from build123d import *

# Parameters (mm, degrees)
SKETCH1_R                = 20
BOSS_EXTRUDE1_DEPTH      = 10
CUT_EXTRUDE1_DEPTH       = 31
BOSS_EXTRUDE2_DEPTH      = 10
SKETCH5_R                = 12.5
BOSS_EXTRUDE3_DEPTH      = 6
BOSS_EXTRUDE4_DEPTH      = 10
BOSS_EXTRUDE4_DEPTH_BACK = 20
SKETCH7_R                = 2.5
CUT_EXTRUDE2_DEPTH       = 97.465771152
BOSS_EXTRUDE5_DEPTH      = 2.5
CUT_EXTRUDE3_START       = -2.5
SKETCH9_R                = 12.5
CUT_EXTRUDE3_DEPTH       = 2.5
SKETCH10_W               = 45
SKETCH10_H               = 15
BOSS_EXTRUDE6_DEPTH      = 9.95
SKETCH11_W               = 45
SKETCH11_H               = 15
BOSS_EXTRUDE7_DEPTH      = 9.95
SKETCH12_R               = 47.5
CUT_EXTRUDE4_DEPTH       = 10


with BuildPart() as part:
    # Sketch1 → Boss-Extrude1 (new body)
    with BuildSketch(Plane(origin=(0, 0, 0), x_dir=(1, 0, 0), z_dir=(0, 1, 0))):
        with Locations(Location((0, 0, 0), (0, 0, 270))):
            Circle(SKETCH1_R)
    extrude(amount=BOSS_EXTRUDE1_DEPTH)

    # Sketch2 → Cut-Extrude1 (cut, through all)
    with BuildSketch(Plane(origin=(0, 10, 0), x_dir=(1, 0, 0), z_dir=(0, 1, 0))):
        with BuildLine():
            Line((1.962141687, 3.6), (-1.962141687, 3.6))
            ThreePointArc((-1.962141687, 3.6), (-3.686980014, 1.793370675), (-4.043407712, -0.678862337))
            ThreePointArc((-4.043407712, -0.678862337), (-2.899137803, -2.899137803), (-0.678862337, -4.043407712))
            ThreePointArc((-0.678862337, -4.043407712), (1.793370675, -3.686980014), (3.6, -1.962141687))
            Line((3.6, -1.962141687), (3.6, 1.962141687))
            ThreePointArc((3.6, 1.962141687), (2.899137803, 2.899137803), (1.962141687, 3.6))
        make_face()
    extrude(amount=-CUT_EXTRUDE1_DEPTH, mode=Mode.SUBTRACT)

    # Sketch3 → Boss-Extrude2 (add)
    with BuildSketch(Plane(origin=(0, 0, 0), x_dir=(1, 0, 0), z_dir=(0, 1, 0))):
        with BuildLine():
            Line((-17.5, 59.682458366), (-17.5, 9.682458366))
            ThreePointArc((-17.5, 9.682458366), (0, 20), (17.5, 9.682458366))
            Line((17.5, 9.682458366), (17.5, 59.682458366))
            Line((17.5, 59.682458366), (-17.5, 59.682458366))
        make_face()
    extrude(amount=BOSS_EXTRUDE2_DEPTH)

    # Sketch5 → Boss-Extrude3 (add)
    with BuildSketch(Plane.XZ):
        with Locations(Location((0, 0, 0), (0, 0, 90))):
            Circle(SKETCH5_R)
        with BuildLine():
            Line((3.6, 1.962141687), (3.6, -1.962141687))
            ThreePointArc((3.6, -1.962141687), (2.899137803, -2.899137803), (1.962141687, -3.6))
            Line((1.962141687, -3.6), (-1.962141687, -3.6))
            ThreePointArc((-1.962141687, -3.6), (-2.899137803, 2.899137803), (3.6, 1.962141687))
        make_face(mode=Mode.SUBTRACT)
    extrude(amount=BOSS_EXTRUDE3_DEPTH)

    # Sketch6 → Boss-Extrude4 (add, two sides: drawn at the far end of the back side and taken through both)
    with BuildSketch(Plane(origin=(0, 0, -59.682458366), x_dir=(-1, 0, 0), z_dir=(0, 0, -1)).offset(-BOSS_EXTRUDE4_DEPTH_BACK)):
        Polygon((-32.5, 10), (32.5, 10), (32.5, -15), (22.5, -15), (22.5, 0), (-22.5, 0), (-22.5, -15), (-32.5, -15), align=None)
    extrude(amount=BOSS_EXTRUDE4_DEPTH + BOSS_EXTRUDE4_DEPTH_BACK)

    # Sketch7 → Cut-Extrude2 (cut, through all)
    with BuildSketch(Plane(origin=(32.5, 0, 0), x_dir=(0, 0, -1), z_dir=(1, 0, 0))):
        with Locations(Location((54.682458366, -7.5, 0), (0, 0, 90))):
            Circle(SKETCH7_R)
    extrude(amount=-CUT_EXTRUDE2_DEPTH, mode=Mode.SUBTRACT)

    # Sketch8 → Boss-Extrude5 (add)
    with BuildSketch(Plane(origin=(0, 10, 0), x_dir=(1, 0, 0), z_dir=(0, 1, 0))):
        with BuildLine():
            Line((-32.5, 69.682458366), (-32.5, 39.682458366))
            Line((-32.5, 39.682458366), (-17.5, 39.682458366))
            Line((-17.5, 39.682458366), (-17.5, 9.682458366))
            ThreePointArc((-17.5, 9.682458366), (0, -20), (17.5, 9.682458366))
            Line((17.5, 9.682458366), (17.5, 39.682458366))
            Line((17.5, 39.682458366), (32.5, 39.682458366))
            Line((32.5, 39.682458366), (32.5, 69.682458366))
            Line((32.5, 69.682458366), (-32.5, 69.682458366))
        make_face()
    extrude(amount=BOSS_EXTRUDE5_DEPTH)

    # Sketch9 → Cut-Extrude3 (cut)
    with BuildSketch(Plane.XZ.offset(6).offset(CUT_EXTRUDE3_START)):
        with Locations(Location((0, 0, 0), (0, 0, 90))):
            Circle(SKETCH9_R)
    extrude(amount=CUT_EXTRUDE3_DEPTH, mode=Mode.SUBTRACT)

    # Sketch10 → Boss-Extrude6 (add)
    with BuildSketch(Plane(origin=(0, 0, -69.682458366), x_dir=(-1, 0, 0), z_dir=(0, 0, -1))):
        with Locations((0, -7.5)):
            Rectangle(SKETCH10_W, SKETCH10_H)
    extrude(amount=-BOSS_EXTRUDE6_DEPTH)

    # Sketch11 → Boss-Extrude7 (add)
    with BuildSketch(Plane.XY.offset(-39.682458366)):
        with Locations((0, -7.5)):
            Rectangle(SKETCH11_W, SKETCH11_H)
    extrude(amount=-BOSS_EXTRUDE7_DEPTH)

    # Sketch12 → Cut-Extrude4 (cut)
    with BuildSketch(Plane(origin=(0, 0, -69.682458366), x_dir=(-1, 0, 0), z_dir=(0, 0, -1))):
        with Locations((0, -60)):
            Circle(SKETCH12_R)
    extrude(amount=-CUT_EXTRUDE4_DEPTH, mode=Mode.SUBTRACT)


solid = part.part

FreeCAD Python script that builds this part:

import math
import FreeCAD as App
import Part
import Sketcher

doc = App.newDocument("Part")
body = doc.addObject("PartDesign::Body", "Body")

sketch1 = body.newObject("Sketcher::SketchObject", "Sketch")
sketch1.AttachmentSupport = (doc.getObject("XZ_Plane"), [""])
sketch1.MapMode = "FlatFace"
sketch1.addGeometry(Part.Circle(App.Vector(0, 0, 0), App.Vector(0, 0, 1), 20), False)
sketch1.addConstraint([
    Sketcher.Constraint("Coincident", 0, 3, -1, 1),
    Sketcher.Constraint("Diameter", 0, 40.0),
])
pad1 = body.newObject("PartDesign::Pad", "Pad")
pad1.Profile = sketch1
pad1.Length = 10
pad1.Reversed = True

sketch2 = body.newObject("Sketcher::SketchObject", "Sketch001")
sketch2.AttachmentSupport = (doc.getObject("XZ_Plane"), [""])
sketch2.MapMode = "FlatFace"
sketch2.AttachmentOffset = App.Placement(App.Vector(0, 0, -10), App.Rotation())
sketch2.addGeometry([
    Part.LineSegment(App.Vector(2, -3.6, 0), App.Vector(-2, -3.6, 0)),
    Part.ArcOfCircle(Part.Circle(App.Vector(0, 0, 0), App.Vector(0, 0, 1), 4.1), math.radians(170), math.radians(241)),
    Part.ArcOfCircle(Part.Circle(App.Vector(0, 0, 0), App.Vector(0, 0, 1), 4.1), math.radians(100), math.radians(170)),
    Part.ArcOfCircle(Part.Circle(App.Vector(0, 0, 0), App.Vector(0, 0, 1), 4.1), math.radians(29), math.radians(100)),
    Part.LineSegment(App.Vector(3.6, 2, 0), App.Vector(3.6, -2, 0)),
    Part.ArcOfCircle(Part.Circle(App.Vector(0, 0, 0), App.Vector(0, 0, 1), 4.1), math.radians(-61), math.radians(-29)),
], False)
sketch2.addConstraint([
    Sketcher.Constraint("Coincident", 0, 2, 1, 2),
    Sketcher.Constraint("Tangent", 1, 1, 2, 2),
    Sketcher.Constraint("Tangent", 2, 1, 3, 2),
    Sketcher.Constraint("Coincident", 3, 1, 4, 1),
    Sketcher.Constraint("Coincident", 4, 2, 5, 2),
    Sketcher.Constraint("Coincident", 5, 1, 0, 1),
    Sketcher.Constraint("Horizontal", 0),
    Sketcher.Constraint("Vertical", 4),
    Sketcher.Constraint("Coincident", 1, 3, -1, 1),
    Sketcher.Constraint("Coincident", 3, 3, -1, 1),
    Sketcher.Constraint("Coincident", 5, 3, -1, 1),
    Sketcher.Constraint("Equal", 3, 5),
    Sketcher.Constraint("Equal", 0, 4),
    Sketcher.Constraint("Radius", 1, 4.1),
    Sketcher.Constraint("DistanceY", 0, 2, -1, 1, 3.6),
    Sketcher.Constraint("DistanceX", 1, 1, -1, 1, 4.043408),
    Sketcher.Constraint("DistanceX", 2, 1, -1, 1, 0.678862),
])
pocket1 = body.newObject("PartDesign::Pocket", "Pocket")
pocket1.Profile = sketch2
pocket1.Type = "ThroughAll"
pocket1.Reversed = True

sketch3 = body.newObject("Sketcher::SketchObject", "Sketch002")
sketch3.AttachmentSupport = (doc.getObject("XZ_Plane"), [""])
sketch3.MapMode = "FlatFace"
sketch3.addGeometry([
    Part.LineSegment(App.Vector(-18, -60, 0), App.Vector(-18, -10, 0)),
    Part.ArcOfCircle(Part.Circle(App.Vector(0, 0, 0), App.Vector(0, 0, 1), 20), math.radians(-151), math.radians(-29)),
    Part.LineSegment(App.Vector(18, -10, 0), App.Vector(18, -60, 0)),
    Part.LineSegment(App.Vector(18, -60, 0), App.Vector(-18, -60, 0)),
], False)
sketch3.addConstraint([
    Sketcher.Constraint("Coincident", 0, 2, 1, 1),
    Sketcher.Constraint("Coincident", 1, 2, 2, 1),
    Sketcher.Constraint("Coincident", 2, 2, 3, 1),
    Sketcher.Constraint("Coincident", 3, 2, 0, 1),
    Sketcher.Constraint("Vertical", 0),
    Sketcher.Constraint("Vertical", 2),
    Sketcher.Constraint("Horizontal", 3),
    Sketcher.Constraint("Coincident", 1, 3, -1, 1),
    Sketcher.Constraint("Horizontal", 0, 2, 1, 2),
    Sketcher.Constraint("Radius", 1, 20.0),
    Sketcher.Constraint("DistanceX", 3, 2, 3, 1, 35.0),
    Sketcher.Constraint("DistanceY", 0, 1, 0, 2, 50.0),
])
pad2 = body.newObject("PartDesign::Pad", "Pad001")
pad2.Profile = sketch3
pad2.Length = 10
pad2.Reversed = True

sketch4 = body.newObject("Sketcher::SketchObject", "Sketch003")
sketch4.AttachmentSupport = (doc.getObject("XZ_Plane"), [""])
sketch4.MapMode = "FlatFace"
sketch4.addGeometry([
    Part.Circle(App.Vector(0, 0, 0), App.Vector(0, 0, 1), 12.5),
    Part.ArcOfCircle(Part.Circle(App.Vector(0, 0, 0), App.Vector(0, 0, 1), 4.1), math.radians(29), math.radians(241)),
    Part.LineSegment(App.Vector(3.6, 2, 0), App.Vector(3.6, -2, 0)),
    Part.ArcOfCircle(Part.Circle(App.Vector(0, 0, 0), App.Vector(0, 0, 1), 4.1), math.radians(-61), math.radians(-29)),
    Part.LineSegment(App.Vector(2, -3.6, 0), App.Vector(-2, -3.6, 0)),
], False)
sketch4.addConstraint([
    Sketcher.Constraint("Coincident", 1, 1, 2, 1),
    Sketcher.Constraint("Coincident", 2, 2, 3, 2),
    Sketcher.Constraint("Coincident", 3, 1, 4, 1),
    Sketcher.Constraint("Coincident", 4, 2, 1, 2),
    Sketcher.Constraint("Vertical", 2),
    Sketcher.Constraint("Horizontal", 4),
    Sketcher.Constraint("Coincident", 0, 3, -1, 1),
    Sketcher.Constraint("Coincident", 1, 3, -1, 1),
    Sketcher.Constraint("Coincident", 3, 3, -1, 1),
    Sketcher.Constraint("Equal", 1, 3),
    Sketcher.Constraint("Equal", 4, 2),
    Sketcher.Constraint("Diameter", 0, 25.0),
    Sketcher.Constraint("Radius", 1, 4.1),
    Sketcher.Constraint("DistanceX", -1, 1, 1, 1, 3.6),
])
pad3 = body.newObject("PartDesign::Pad", "Pad002")
pad3.Profile = sketch4
pad3.Length = 6

sketch5 = body.newObject("Sketcher::SketchObject", "Sketch004")
sketch5.AttachmentSupport = (doc.getObject("XY_Plane"), [""])
sketch5.MapMode = "FlatFace"
sketch5.AttachmentOffset = App.Placement(App.Vector(0, 0, -59.682458), App.Rotation())
sketch5.addGeometry([
    Part.LineSegment(App.Vector(-32, 10, 0), App.Vector(32, 10, 0)),
    Part.LineSegment(App.Vector(32, 10, 0), App.Vector(32, -15, 0)),
    Part.LineSegment(App.Vector(32, -15, 0), App.Vector(22, -15, 0)),
    Part.LineSegment(App.Vector(22, -15, 0), App.Vector(22, 0, 0)),
    Part.LineSegment(App.Vector(22, 0, 0), App.Vector(-22, 0, 0)),
    Part.LineSegment(App.Vector(-22, 0, 0), App.Vector(-22, -15, 0)),
    Part.LineSegment(App.Vector(-22, -15, 0), App.Vector(-32, -15, 0)),
    Part.LineSegment(App.Vector(-32, -15, 0), App.Vector(-32, 10, 0)),
], False)
sketch5.addConstraint([
    Sketcher.Constraint("Coincident", 0, 2, 1, 1),
    Sketcher.Constraint("Coincident", 1, 2, 2, 1),
    Sketcher.Constraint("Coincident", 2, 2, 3, 1),
    Sketcher.Constraint("Coincident", 3, 2, 4, 1),
    Sketcher.Constraint("Coincident", 4, 2, 5, 1),
    Sketcher.Constraint("Coincident", 5, 2, 6, 1),
    Sketcher.Constraint("Coincident", 6, 2, 7, 1),
    Sketcher.Constraint("Coincident", 7, 2, 0, 1),
    Sketcher.Constraint("Horizontal", 0),
    Sketcher.Constraint("Vertical", 1),
    Sketcher.Constraint("Horizontal", 2),
    Sketcher.Constraint("Vertical", 3),
    Sketcher.Constraint("Horizontal", 4),
    Sketcher.Constraint("Vertical", 5),
    Sketcher.Constraint("Horizontal", 6),
    Sketcher.Constraint("Vertical", 7),
    Sketcher.Constraint("Symmetric", 3, 2, 4, 2, -1, 1),
    Sketcher.Constraint("Symmetric", 1, 2, 6, 2, -2),
    Sketcher.Constraint("DistanceX", 0, 1, 0, 2, 65.0),
    Sketcher.Constraint("DistanceX", 2, 2, 2, 1, 10.0),
    Sketcher.Constraint("DistanceY", 1, 2, 1, 1, 25.0),
    Sketcher.Constraint("DistanceY", 3, 1, 3, 2, 15.0),
])
pad4 = body.newObject("PartDesign::Pad", "Pad003")
pad4.Profile = sketch5
pad4.Type = "TwoLengths"
pad4.Length = 10
pad4.Length2 = 20
pad4.Reversed = True

sketch6 = body.newObject("Sketcher::SketchObject", "Sketch005")
sketch6.AttachmentSupport = (doc.getObject("YZ_Plane"), [""])
sketch6.MapMode = "FlatFace"
sketch6.AttachmentOffset = App.Placement(App.Vector(0, 0, 32.5), App.Rotation())
sketch6.addGeometry(Part.Circle(App.Vector(-7.5, -54.7, 0), App.Vector(0, 0, 1), 2.5), False)
sketch6.addConstraint([
    Sketcher.Constraint("Diameter", 0, 5.0),
    Sketcher.Constraint("DistanceX", 0, 3, -1, 1, 7.5),
    Sketcher.Constraint("DistanceY", 0, 3, -1, 1, 54.682458),
])
pocket2 = body.newObject("PartDesign::Pocket", "Pocket001")
pocket2.Profile = sketch6
pocket2.Type = "ThroughAll"

sketch7 = body.newObject("Sketcher::SketchObject", "Sketch006")
sketch7.AttachmentSupport = (doc.getObject("XZ_Plane"), [""])
sketch7.MapMode = "FlatFace"
sketch7.AttachmentOffset = App.Placement(App.Vector(0, 0, -10), App.Rotation())
sketch7.addGeometry([
    Part.LineSegment(App.Vector(-32, -70, 0), App.Vector(-32, -40, 0)),
    Part.LineSegment(App.Vector(-32, -40, 0), App.Vector(-18, -40, 0)),
    Part.LineSegment(App.Vector(-18, -40, 0), App.Vector(-18, -10, 0)),
    Part.ArcOfCircle(Part.Circle(App.Vector(0, 0, 0), App.Vector(0, 0, 1), 20), math.radians(-29), math.radians(209)),
    Part.LineSegment(App.Vector(18, -10, 0), App.Vector(18, -40, 0)),
    Part.LineSegment(App.Vector(18, -40, 0), App.Vector(32, -40, 0)),
    Part.LineSegment(App.Vector(32, -40, 0), App.Vector(32, -70, 0)),
    Part.LineSegment(App.Vector(32, -70, 0), App.Vector(-32, -70, 0)),
], False)
sketch7.addConstraint([
    Sketcher.Constraint("Coincident", 0, 2, 1, 1),
    Sketcher.Constraint("Coincident", 1, 2, 2, 1),
    Sketcher.Constraint("Coincident", 2, 2, 3, 2),
    Sketcher.Constraint("Coincident", 3, 1, 4, 1),
    Sketcher.Constraint("Coincident", 4, 2, 5, 1),
    Sketcher.Constraint("Coincident", 5, 2, 6, 1),
    Sketcher.Constraint("Coincident", 6, 2, 7, 1),
    Sketcher.Constraint("Coincident", 7, 2, 0, 1),
    Sketcher.Constraint("Vertical", 0),
    Sketcher.Constraint("Horizontal", 1),
    Sketcher.Constraint("Vertical", 2),
    Sketcher.Constraint("Vertical", 4),
    Sketcher.Constraint("Horizontal", 5),
    Sketcher.Constraint("Vertical", 6),
    Sketcher.Constraint("Horizontal", 7),
    Sketcher.Constraint("Coincident", 3, 3, -1, 1),
    Sketcher.Constraint("Symmetric", 1, 2, 4, 2, -2),
    Sketcher.Constraint("Equal", 1, 5),
    Sketcher.Constraint("Equal", 0, 2),
    Sketcher.Constraint("Radius", 3, 20.0),
    Sketcher.Constraint("DistanceX", 1, 1, 1, 2, 15.0),
    Sketcher.Constraint("DistanceX", 7, 2, 7, 1, 65.0),
    Sketcher.Constraint("DistanceY", 0, 1, 0, 2, 30.0),
])
pad5 = body.newObject("PartDesign::Pad", "Pad004")
pad5.Profile = sketch7
pad5.Length = 2.5
pad5.Reversed = True

sketch8 = body.newObject("Sketcher::SketchObject", "Sketch007")
sketch8.AttachmentSupport = (doc.getObject("XZ_Plane"), [""])
sketch8.MapMode = "FlatFace"
sketch8.AttachmentOffset = App.Placement(App.Vector(0, 0, 3.5), App.Rotation())
sketch8.addGeometry(Part.Circle(App.Vector(0, 0, 0), App.Vector(0, 0, 1), 12), False)
sketch8.addConstraint([
    Sketcher.Constraint("Coincident", 0, 3, -1, 1),
    Sketcher.Constraint("Diameter", 0, 25.0),
])
pocket3 = body.newObject("PartDesign::Pocket", "Pocket002")
pocket3.Profile = sketch8
pocket3.Length = 2.5
pocket3.Reversed = True

sketch9 = body.newObject("Sketcher::SketchObject", "Sketch008")
sketch9.AttachmentSupport = (doc.getObject("XY_Plane"), [""])
sketch9.MapMode = "FlatFace"
sketch9.AttachmentOffset = App.Placement(App.Vector(0, 0, -69.682458), App.Rotation())
sketch9.addGeometry([
    Part.LineSegment(App.Vector(22, 0, 0), App.Vector(22, -15, 0)),
    Part.LineSegment(App.Vector(22, -15, 0), App.Vector(-22, -15, 0)),
    Part.LineSegment(App.Vector(-22, -15, 0), App.Vector(-22, 0, 0)),
    Part.LineSegment(App.Vector(-22, 0, 0), App.Vector(22, 0, 0)),
], False)
sketch9.addConstraint([
    Sketcher.Constraint("Coincident", 0, 2, 1, 1),
    Sketcher.Constraint("Coincident", 1, 2, 2, 1),
    Sketcher.Constraint("Coincident", 2, 2, 3, 1),
    Sketcher.Constraint("Coincident", 3, 2, 0, 1),
    Sketcher.Constraint("Vertical", 0),
    Sketcher.Constraint("Horizontal", 1),
    Sketcher.Constraint("Vertical", 2),
    Sketcher.Constraint("Horizontal", 3),
    Sketcher.Constraint("Symmetric", 2, 2, 3, 2, -1, 1),
    Sketcher.Constraint("DistanceX", 1, 2, 1, 1, 45.0),
    Sketcher.Constraint("DistanceY", 0, 2, 0, 1, 15.0),
])
pad6 = body.newObject("PartDesign::Pad", "Pad005")
pad6.Profile = sketch9
pad6.Length = 9.95

sketch10 = body.newObject("Sketcher::SketchObject", "Sketch009")
sketch10.AttachmentSupport = (doc.getObject("XY_Plane"), [""])
sketch10.MapMode = "FlatFace"
sketch10.AttachmentOffset = App.Placement(App.Vector(0, 0, -39.682458), App.Rotation())
sketch10.addGeometry([
    Part.LineSegment(App.Vector(-22, 0, 0), App.Vector(-22, -15, 0)),
    Part.LineSegment(App.Vector(-22, -15, 0), App.Vector(22, -15, 0)),
    Part.LineSegment(App.Vector(22, -15, 0), App.Vector(22, 0, 0)),
    Part.LineSegment(App.Vector(22, 0, 0), App.Vector(-22, 0, 0)),
], False)
sketch10.addConstraint([
    Sketcher.Constraint("Coincident", 0, 2, 1, 1),
    Sketcher.Constraint("Coincident", 1, 2, 2, 1),
    Sketcher.Constraint("Coincident", 2, 2, 3, 1),
    Sketcher.Constraint("Coincident", 3, 2, 0, 1),
    Sketcher.Constraint("Vertical", 0),
    Sketcher.Constraint("Horizontal", 1),
    Sketcher.Constraint("Vertical", 2),
    Sketcher.Constraint("Horizontal", 3),
    Sketcher.Constraint("Symmetric", 2, 2, 3, 2, -1, 1),
    Sketcher.Constraint("DistanceX", 1, 1, 1, 2, 45.0),
    Sketcher.Constraint("DistanceY", 0, 2, 0, 1, 15.0),
])
pad7 = body.newObject("PartDesign::Pad", "Pad006")
pad7.Profile = sketch10
pad7.Length = 9.95
pad7.Reversed = True

sketch11 = body.newObject("Sketcher::SketchObject", "Sketch010")
sketch11.AttachmentSupport = (doc.getObject("XY_Plane"), [""])
sketch11.MapMode = "FlatFace"
sketch11.AttachmentOffset = App.Placement(App.Vector(0, 0, -69.682458), App.Rotation())
sketch11.addGeometry(Part.Circle(App.Vector(0, -60, 0), App.Vector(0, 0, 1), 48), False)
sketch11.addConstraint([
    Sketcher.Constraint("PointOnObject", 0, 3, -2),
    Sketcher.Constraint("Diameter", 0, 95.0),
    Sketcher.Constraint("DistanceY", 0, 3, -1, 1, 60.0),
])
pocket4 = body.newObject("PartDesign::Pocket", "Pocket003")
pocket4.Profile = sketch11
pocket4.Length = 10
pocket4.Reversed = True

doc.recompute()
